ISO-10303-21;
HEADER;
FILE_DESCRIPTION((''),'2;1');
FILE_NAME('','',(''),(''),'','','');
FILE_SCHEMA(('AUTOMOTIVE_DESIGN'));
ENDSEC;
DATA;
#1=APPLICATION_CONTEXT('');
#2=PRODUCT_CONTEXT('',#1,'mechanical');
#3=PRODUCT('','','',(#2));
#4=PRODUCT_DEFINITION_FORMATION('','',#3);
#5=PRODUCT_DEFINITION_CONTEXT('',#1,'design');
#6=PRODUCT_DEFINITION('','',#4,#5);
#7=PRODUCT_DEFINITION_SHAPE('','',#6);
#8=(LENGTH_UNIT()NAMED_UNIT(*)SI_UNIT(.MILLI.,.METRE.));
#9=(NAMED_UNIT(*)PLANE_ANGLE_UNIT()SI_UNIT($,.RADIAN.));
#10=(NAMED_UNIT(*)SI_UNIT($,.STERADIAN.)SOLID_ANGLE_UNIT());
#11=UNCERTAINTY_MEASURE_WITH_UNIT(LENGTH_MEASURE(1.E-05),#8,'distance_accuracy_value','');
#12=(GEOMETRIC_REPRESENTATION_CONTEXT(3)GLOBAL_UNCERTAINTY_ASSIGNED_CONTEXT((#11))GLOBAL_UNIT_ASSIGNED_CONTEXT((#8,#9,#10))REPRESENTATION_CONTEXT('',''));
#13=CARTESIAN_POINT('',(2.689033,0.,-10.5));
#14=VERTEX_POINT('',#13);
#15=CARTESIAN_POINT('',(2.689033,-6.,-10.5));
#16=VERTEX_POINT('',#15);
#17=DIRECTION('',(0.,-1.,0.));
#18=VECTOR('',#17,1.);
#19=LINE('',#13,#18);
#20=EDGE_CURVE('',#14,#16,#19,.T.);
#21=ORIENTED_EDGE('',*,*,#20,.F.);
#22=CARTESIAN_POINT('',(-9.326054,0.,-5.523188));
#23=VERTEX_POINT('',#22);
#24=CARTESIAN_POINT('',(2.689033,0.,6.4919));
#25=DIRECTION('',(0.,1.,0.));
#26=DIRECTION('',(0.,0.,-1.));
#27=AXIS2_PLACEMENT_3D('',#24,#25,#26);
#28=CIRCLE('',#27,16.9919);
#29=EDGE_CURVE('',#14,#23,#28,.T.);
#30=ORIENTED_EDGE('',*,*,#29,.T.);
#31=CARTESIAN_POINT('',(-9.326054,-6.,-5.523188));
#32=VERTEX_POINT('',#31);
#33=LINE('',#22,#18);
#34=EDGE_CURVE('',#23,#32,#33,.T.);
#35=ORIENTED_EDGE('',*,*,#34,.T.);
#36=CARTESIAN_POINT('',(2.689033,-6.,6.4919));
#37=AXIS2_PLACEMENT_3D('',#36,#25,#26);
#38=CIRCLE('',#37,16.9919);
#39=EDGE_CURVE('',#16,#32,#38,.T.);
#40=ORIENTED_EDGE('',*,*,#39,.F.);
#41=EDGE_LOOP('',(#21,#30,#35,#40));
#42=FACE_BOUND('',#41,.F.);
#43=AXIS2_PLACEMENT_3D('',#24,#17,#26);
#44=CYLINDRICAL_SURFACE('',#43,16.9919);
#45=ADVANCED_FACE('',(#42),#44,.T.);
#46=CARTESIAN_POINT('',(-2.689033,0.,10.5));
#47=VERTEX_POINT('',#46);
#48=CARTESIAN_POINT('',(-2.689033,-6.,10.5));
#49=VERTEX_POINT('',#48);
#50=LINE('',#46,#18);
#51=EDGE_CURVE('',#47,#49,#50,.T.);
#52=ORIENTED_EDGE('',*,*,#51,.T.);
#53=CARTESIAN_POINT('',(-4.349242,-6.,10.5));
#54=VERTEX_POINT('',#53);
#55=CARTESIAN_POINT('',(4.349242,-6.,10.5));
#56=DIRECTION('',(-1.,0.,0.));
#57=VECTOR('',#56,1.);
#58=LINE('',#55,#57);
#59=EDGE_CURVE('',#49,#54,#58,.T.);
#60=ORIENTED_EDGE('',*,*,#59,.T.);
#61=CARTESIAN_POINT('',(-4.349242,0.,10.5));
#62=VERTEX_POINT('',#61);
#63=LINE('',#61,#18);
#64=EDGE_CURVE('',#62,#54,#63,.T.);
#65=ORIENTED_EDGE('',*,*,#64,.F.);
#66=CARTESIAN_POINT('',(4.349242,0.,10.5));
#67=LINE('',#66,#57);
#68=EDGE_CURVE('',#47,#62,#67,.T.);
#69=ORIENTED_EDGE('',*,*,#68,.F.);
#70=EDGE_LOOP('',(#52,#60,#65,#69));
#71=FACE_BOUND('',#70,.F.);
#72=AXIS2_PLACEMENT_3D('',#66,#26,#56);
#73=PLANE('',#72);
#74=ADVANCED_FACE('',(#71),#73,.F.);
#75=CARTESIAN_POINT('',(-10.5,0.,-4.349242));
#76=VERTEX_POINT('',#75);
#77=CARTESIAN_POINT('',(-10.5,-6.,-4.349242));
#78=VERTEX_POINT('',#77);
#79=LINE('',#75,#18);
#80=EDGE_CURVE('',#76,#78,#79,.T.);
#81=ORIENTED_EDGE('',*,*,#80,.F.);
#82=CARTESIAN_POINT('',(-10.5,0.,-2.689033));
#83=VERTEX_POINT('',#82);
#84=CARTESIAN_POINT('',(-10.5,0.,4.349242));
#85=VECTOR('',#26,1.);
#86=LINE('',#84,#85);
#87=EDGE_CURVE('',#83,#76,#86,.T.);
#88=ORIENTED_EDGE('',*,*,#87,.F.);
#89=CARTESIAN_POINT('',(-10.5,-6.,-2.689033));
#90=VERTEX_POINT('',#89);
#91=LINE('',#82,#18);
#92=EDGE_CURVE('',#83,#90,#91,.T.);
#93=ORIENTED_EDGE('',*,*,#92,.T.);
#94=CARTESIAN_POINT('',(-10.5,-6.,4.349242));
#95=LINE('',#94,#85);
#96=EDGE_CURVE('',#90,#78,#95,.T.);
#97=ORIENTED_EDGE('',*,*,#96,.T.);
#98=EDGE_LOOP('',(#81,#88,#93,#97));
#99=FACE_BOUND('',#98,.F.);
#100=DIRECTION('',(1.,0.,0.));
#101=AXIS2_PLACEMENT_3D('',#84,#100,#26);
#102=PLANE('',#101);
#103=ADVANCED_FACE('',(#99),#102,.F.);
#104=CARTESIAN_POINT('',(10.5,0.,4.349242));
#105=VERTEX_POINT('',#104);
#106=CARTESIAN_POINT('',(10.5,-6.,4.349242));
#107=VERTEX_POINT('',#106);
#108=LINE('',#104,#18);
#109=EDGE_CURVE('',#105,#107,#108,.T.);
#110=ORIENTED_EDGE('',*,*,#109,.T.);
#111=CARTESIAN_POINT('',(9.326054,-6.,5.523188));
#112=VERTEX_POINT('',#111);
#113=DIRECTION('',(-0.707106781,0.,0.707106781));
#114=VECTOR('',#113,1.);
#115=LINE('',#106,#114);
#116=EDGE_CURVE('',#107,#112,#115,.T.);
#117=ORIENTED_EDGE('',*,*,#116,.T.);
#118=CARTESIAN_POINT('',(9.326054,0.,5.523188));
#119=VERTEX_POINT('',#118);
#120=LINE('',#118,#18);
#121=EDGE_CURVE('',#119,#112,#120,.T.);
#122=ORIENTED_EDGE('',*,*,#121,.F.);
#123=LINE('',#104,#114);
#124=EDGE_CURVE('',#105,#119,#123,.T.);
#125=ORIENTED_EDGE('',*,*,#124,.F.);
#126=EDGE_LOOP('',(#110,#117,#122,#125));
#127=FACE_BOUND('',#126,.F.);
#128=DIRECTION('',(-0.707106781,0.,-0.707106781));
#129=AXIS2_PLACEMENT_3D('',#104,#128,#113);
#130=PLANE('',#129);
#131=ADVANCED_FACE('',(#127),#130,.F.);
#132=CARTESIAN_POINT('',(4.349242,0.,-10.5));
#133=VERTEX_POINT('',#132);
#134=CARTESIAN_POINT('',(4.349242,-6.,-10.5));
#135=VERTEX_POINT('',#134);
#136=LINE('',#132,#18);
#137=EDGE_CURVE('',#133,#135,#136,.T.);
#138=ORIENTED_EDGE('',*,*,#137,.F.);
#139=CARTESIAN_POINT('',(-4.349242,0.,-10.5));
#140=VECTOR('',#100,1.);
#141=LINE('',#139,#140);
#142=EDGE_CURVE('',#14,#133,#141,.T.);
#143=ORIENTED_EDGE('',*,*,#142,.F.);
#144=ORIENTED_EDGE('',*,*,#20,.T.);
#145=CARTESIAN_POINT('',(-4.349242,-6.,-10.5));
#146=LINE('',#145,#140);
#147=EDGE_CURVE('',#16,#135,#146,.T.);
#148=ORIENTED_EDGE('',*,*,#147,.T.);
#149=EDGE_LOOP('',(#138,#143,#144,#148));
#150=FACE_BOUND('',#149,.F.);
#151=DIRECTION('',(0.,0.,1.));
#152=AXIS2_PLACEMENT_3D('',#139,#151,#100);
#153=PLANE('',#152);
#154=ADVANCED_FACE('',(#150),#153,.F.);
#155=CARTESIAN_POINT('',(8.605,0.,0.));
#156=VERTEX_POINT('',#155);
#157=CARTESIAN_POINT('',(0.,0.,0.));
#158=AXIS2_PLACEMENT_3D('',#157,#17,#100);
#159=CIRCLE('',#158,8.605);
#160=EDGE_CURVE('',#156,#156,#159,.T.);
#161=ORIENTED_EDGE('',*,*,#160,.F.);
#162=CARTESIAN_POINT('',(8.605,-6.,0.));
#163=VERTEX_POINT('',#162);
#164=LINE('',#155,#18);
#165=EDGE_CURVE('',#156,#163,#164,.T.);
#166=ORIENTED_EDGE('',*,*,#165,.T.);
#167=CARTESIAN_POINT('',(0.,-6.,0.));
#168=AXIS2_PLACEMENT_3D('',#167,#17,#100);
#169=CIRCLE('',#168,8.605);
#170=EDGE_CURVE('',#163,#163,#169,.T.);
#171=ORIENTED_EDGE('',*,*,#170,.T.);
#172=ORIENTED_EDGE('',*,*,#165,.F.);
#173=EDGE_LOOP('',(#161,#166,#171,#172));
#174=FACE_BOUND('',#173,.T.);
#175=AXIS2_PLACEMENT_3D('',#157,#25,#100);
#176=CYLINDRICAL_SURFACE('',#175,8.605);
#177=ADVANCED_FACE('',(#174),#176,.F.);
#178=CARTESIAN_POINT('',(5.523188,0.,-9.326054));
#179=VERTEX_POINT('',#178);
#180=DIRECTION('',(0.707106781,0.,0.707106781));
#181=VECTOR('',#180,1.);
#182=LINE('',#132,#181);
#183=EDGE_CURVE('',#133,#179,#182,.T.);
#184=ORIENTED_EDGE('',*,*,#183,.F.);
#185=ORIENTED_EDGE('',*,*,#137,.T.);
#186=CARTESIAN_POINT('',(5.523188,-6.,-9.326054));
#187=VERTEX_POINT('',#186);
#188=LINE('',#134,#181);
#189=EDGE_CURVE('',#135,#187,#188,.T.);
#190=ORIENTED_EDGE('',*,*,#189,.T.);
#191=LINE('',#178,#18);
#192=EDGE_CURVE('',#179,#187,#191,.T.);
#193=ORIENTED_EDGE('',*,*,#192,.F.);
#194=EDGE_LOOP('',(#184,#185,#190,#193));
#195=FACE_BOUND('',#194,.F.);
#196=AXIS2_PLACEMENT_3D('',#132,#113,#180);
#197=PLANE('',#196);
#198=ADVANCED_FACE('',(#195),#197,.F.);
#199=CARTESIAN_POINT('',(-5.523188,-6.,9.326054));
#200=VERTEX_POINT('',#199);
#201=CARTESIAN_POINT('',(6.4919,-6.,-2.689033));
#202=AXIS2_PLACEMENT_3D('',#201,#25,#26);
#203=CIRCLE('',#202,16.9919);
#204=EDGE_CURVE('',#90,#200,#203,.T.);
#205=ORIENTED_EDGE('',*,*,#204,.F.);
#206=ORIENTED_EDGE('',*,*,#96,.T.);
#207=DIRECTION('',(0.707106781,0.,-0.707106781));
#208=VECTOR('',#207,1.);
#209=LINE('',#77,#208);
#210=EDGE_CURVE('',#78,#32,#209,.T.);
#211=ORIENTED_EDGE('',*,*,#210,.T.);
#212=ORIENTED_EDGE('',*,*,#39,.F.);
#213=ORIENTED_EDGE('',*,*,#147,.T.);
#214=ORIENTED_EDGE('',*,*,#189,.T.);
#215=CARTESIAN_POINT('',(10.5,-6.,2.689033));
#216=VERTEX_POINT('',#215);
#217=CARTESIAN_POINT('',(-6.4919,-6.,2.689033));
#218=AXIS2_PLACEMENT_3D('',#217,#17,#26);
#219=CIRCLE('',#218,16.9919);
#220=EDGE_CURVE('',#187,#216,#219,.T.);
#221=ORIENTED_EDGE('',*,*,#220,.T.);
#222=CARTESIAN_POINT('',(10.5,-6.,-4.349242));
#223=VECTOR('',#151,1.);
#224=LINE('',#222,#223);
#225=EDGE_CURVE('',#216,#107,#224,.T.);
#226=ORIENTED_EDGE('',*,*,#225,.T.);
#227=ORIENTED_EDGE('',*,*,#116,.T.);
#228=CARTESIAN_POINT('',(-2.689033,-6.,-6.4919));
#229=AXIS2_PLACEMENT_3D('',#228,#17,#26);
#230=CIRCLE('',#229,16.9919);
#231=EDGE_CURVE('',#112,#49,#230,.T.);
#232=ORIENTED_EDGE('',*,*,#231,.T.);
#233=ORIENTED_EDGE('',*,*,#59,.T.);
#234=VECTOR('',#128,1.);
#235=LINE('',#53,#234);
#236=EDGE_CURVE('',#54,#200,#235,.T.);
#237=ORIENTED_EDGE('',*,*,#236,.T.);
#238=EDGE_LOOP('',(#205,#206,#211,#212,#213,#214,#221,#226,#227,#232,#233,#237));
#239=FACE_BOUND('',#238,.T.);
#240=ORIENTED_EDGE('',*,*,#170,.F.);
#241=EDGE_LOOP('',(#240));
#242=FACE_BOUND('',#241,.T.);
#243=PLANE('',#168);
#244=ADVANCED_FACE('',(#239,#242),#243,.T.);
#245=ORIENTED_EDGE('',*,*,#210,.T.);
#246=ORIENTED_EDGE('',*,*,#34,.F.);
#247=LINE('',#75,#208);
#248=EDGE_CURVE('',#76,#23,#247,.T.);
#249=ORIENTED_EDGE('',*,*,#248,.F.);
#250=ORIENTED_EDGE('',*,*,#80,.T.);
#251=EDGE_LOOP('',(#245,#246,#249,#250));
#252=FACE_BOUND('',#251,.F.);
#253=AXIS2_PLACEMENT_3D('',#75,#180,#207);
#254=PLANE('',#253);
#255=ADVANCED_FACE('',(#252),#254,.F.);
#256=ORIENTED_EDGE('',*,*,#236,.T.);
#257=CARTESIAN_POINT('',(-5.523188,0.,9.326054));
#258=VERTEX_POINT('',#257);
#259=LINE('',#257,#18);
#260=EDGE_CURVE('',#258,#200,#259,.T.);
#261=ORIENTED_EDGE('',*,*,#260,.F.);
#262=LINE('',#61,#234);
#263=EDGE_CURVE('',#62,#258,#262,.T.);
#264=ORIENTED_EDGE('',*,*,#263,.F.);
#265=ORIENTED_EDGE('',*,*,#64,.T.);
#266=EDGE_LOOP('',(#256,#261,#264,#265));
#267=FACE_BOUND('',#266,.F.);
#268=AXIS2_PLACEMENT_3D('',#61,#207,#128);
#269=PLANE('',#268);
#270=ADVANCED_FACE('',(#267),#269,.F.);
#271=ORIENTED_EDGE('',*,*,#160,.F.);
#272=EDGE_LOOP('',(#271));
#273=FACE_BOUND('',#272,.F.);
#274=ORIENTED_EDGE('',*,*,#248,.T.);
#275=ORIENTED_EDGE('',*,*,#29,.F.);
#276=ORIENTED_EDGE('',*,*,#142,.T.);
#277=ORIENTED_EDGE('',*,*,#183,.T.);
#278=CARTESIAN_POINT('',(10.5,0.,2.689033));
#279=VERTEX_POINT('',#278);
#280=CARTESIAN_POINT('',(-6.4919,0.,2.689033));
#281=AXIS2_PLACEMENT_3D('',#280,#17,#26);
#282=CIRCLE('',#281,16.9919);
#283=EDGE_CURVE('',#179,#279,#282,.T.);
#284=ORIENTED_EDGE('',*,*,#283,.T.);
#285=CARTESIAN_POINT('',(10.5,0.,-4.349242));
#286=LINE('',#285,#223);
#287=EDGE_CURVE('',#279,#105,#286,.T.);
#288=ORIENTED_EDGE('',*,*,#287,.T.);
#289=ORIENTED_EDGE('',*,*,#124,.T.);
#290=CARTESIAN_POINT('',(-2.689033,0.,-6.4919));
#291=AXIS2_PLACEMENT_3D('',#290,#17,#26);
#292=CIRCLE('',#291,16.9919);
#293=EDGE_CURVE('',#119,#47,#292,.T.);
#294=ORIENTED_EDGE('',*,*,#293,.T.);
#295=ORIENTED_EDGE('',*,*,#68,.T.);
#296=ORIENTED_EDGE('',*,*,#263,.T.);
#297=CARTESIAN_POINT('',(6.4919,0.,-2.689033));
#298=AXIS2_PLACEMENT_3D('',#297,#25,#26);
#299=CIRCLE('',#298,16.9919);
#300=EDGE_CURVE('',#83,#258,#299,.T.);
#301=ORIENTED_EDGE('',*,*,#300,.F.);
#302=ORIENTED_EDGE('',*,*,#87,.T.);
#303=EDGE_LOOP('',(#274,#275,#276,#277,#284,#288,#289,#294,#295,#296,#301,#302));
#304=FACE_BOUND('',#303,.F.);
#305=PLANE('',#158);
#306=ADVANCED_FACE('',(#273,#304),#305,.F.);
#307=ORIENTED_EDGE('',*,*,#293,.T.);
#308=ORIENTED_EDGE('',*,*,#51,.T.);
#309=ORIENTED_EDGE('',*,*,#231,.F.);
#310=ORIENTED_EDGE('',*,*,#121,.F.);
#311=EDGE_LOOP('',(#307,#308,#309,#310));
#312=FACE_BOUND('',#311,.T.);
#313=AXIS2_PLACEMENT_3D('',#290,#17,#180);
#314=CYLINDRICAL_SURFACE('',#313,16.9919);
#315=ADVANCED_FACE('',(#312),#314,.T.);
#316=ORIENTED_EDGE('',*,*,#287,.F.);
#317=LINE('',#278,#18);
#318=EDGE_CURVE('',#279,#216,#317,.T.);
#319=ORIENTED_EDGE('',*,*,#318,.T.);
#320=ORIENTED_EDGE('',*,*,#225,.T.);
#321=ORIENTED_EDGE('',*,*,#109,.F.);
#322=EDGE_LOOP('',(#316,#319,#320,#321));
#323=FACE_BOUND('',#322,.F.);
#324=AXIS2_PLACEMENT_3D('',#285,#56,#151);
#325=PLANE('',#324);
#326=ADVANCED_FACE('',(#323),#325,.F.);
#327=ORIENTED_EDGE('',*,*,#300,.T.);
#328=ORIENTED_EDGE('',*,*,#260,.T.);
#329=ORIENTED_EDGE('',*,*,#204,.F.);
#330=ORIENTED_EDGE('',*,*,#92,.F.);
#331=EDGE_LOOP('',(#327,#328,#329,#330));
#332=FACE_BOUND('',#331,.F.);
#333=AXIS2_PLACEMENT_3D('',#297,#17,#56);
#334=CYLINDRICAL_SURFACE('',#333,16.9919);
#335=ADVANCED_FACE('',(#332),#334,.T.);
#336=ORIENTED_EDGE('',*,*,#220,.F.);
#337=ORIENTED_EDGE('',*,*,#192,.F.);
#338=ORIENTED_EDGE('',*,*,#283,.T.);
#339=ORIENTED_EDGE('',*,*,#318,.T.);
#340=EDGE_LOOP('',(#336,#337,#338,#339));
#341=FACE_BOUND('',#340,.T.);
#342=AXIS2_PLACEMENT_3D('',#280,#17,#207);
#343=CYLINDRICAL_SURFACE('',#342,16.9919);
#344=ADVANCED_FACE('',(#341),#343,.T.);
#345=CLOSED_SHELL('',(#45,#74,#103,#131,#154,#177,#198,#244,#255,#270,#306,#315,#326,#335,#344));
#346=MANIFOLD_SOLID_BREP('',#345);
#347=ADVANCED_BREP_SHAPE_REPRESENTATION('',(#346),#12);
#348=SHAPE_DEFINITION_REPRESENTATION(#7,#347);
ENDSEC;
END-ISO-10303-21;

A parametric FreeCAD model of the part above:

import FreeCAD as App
import Part
import Sketcher

V = App.Vector
Q = App.Units.Quantity


def edges_at(feature, points):
    """Names of the edges that pass closest to the given points."""
    edges = feature.Shape.Edges
    near = lambda p: min(range(len(edges)), key=lambda i: edges[i].distToShape(Part.Vertex(*p))[0])
    return sorted({f"Edge{near(p) + 1}" for p in points})

doc = App.newDocument("Part")
params = doc.addObject("Spreadsheet::Sheet", "Params")
for row, (alias, value) in enumerate([
    ("sketch1_diameter", "17.21 mm"),
    ("pad1_length", "6 mm"),
    ("fillet_radius", "16.9919 mm"),
], start=1):
    params.set(f"A{row}", alias)
    params.set(f"B{row}", "=" + value)
    params.setAlias(f"B{row}", alias)

body = doc.addObject("PartDesign::Body", "Body")

# Sketch on XZ plane
sketch1 = body.newObject("Sketcher::SketchObject", "Sketch")
sketch1.AttachmentSupport = (doc.getObject("XZ_Plane"), [""])
sketch1.MapMode = "FlatFace"
sketch1.addGeometry([
    Part.LineSegment(V(-4.349242, -10.5, 0), V(4.349242, -10.5, 0)),  # 0
    Part.LineSegment(V(4.349242, -10.5, 0), V(10.5, -4.349242, 0)),  # 1
    Part.LineSegment(V(10.5, -4.349242, 0), V(10.5, 4.349242, 0)),  # 2
    Part.LineSegment(V(10.5, 4.349242, 0), V(4.349242, 10.5, 0)),  # 3
    Part.LineSegment(V(4.349242, 10.5, 0), V(-4.349242, 10.5, 0)),  # 4
    Part.LineSegment(V(-4.349242, 10.5, 0), V(-10.5, 4.349242, 0)),  # 5
    Part.LineSegment(V(-10.5, 4.349242, 0), V(-10.5, -4.349242, 0)),  # 6
    Part.LineSegment(V(-10.5, -4.349242, 0), V(-4.349242, -10.5, 0)),  # 7
    Part.Circle(V(0, 0, 0), V(0, 0, 1), 8.605),  # 8
], False)
sketch1.addConstraint([
    Sketcher.Constraint("Coincident", 0, 2, 1, 1),
    Sketcher.Constraint("Coincident", 1, 2, 2, 1),
    Sketcher.Constraint("Coincident", 2, 2, 3, 1),
    Sketcher.Constraint("Coincident", 3, 2, 4, 1),
    Sketcher.Constraint("Coincident", 4, 2, 5, 1),
    Sketcher.Constraint("Coincident", 5, 2, 6, 1),
    Sketcher.Constraint("Coincident", 6, 2, 7, 1),
    Sketcher.Constraint("Coincident", 7, 2, 0, 1),
    Sketcher.Constraint("Horizontal", 0),
    Sketcher.Constraint("Vertical", 2),
    Sketcher.Constraint("Horizontal", 4),
    Sketcher.Constraint("Vertical", 6),
    Sketcher.Constraint("Coincident", 8, 3, -1, 1),
    Sketcher.Constraint("Symmetric", 0, 2, 4, 2, -1, 1),
    Sketcher.Constraint("Symmetric", 1, 2, 5, 2, -1, 1),
    Sketcher.Constraint("Perpendicular", 1, 3),
    Sketcher.Constraint("Perpendicular", 5, 7),
    Sketcher.Constraint("Horizontal", 2, 2, 5, 2),
    Sketcher.Constraint("Horizontal", 1, 2, 6, 2),
    Sketcher.Constraint("Vertical", 0, 2, 3, 2),
    Sketcher.Constraint("Equal", 4, 2),
    Sketcher.Constraint("Diameter", 8, Q("17.21 mm")),
    Sketcher.Constraint("DistanceY", 0, 2, 3, 2, Q("21 mm")),
    Sketcher.Constraint("DistanceX", 0, 1, 0, 2, Q("8.698484 mm")),
])
sketch1.setExpression("Constraints[21]", "Params.sketch1_diameter")
pad1 = body.newObject("PartDesign::Pad", "Pad")
pad1.Profile = sketch1
pad1.setExpression("Length", "Params.pad1_length")
doc.recompute()

fillet = body.newObject("PartDesign::Fillet", "Fillet")
fillet.Base = (pad1, edges_at(pad1, [
    (-10.5, -3, 4.349),
    (4.349, -3, 10.5),
    (10.5, -3, -4.349),
    (-4.349, -3, -10.5),
]))
fillet.setExpression("Radius", "Params.fillet_radius")

doc.recompute()
